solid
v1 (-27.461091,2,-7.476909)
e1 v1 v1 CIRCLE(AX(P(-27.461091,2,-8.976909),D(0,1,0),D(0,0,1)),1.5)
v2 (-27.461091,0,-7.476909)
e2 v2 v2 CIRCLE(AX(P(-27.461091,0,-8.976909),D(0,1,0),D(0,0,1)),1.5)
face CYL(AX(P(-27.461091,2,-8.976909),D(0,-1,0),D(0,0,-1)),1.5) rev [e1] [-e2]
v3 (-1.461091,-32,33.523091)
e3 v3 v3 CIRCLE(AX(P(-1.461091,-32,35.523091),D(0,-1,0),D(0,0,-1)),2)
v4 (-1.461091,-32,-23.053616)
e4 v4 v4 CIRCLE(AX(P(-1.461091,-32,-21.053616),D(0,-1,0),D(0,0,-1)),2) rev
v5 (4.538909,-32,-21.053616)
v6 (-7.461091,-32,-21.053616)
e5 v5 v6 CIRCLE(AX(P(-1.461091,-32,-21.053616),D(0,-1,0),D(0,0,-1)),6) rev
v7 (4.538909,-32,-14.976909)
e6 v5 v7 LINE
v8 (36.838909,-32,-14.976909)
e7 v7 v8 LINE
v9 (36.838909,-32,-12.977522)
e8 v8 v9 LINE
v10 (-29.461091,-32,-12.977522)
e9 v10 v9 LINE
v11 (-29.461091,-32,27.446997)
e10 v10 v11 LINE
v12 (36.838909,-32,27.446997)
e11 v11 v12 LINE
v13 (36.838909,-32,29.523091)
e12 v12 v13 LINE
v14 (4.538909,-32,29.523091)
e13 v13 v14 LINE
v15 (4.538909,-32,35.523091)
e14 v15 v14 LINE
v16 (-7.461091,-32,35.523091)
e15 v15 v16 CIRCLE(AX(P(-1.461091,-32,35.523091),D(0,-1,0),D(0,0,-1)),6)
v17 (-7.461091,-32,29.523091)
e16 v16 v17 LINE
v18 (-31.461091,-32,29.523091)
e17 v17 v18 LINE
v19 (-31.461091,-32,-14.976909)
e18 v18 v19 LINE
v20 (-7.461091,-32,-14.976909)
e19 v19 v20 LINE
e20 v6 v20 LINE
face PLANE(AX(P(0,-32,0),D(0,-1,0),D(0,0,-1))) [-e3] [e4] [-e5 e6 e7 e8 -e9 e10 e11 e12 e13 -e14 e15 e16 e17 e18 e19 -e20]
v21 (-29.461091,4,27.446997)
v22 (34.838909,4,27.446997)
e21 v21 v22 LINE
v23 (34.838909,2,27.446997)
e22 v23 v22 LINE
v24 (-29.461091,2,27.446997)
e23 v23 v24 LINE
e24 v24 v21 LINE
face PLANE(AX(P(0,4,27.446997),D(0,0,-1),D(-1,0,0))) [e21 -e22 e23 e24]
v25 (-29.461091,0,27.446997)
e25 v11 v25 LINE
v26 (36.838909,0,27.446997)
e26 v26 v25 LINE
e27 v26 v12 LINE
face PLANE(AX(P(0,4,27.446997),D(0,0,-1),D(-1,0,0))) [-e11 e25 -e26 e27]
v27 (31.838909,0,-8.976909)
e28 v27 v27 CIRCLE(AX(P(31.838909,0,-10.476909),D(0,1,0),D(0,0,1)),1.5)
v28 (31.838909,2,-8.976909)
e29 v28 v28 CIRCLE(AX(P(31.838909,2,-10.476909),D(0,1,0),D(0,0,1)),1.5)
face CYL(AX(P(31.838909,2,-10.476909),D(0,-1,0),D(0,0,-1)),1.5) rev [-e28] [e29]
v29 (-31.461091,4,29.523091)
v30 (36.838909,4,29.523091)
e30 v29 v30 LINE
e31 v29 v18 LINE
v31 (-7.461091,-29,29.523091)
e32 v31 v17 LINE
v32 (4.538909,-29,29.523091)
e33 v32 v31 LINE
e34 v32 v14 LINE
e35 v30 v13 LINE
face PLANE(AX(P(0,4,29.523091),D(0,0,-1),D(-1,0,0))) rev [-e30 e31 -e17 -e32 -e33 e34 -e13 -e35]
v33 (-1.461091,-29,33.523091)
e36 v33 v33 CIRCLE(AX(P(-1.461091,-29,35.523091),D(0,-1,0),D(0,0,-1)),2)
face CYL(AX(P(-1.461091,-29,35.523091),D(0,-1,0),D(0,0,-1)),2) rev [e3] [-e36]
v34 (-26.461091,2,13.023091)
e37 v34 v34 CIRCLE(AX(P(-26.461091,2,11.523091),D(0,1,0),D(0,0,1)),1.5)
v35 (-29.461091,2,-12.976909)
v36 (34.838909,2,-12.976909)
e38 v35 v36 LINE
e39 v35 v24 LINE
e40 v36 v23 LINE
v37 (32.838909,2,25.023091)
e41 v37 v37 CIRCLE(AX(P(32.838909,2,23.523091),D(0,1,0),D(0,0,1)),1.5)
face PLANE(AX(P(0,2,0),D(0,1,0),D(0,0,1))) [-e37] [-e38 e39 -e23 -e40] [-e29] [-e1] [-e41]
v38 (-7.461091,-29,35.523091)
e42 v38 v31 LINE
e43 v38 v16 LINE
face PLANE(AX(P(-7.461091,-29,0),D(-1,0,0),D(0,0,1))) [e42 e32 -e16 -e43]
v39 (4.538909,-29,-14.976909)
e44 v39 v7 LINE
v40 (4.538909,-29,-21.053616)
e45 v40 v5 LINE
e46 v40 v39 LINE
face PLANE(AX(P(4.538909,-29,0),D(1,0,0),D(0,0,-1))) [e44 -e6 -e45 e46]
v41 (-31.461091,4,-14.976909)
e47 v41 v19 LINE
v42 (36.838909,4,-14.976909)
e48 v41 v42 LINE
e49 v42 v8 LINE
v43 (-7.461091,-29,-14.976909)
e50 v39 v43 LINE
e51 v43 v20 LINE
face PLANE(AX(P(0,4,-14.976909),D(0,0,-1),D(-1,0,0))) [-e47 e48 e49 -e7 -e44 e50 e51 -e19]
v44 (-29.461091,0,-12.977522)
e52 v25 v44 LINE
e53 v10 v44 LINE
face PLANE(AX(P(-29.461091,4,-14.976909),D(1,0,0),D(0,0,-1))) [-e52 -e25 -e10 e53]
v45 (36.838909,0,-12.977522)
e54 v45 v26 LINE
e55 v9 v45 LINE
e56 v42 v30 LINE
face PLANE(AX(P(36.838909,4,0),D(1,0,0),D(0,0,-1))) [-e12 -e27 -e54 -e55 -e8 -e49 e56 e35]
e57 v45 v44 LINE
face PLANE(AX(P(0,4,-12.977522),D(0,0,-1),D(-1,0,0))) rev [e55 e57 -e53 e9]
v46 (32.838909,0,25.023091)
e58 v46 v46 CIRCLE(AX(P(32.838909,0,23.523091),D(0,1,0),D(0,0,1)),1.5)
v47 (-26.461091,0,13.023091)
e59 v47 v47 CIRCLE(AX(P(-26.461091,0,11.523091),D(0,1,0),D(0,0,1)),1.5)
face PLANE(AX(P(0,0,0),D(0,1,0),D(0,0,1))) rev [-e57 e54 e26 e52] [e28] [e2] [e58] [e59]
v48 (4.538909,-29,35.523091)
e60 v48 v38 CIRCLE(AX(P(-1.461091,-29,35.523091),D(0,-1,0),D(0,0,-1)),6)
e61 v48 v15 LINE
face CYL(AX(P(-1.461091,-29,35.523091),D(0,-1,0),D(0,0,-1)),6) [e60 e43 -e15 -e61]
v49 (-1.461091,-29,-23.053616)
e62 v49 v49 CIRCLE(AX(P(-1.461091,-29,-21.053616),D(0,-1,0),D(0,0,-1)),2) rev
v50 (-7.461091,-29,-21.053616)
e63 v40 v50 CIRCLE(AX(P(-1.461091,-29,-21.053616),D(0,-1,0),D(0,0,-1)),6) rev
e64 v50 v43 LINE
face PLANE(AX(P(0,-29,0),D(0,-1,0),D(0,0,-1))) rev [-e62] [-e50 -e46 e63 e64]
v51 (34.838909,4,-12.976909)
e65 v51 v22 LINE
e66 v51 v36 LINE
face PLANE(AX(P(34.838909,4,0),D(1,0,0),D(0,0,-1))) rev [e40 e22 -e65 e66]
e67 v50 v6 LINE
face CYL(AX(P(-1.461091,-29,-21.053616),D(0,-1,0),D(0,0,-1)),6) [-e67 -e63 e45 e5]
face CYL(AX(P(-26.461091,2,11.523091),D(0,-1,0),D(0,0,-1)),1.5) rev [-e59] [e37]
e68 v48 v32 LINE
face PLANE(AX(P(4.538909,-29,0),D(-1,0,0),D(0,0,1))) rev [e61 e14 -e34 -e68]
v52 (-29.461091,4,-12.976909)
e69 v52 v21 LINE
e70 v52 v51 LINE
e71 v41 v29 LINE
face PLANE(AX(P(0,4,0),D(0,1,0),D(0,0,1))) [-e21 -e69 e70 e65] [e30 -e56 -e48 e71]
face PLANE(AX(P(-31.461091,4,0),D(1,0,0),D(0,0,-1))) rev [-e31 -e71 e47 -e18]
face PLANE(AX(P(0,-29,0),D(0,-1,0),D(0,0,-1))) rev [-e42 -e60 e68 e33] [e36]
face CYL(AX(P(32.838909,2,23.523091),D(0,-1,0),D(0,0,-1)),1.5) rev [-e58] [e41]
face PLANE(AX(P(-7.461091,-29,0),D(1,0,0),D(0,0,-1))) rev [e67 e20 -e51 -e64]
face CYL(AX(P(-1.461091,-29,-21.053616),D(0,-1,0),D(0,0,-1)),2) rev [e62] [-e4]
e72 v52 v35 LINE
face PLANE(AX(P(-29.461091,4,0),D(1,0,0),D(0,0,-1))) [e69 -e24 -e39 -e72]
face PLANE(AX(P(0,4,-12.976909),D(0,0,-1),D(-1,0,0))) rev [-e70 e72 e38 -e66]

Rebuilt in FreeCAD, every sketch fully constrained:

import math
import FreeCAD as App
import Part
import Sketcher

V = App.Vector
Q = App.Units.Quantity

doc = App.newDocument("Part")
body = doc.addObject("PartDesign::Body", "Body")

# Sketch on XZ plane
sketch1 = doc.addObject("Sketcher::SketchObject", "Sketch")
body.addObject(sketch1)
sketch1.AttachmentSupport = (doc.XZ_Plane, [""])
sketch1.MapMode = "FlatFace"
sketch1.addGeometry(Part.LineSegment(V(-29.5, -13, 0), V(-29.5, 27.5, 0)), False)
sketch1.addGeometry(Part.LineSegment(V(-29.5, 27.5, 0), V(34.8, 27.5, 0)), False)
sketch1.addGeometry(Part.LineSegment(V(34.8, 27.5, 0), V(34.8, -13, 0)), False)
sketch1.addGeometry(Part.LineSegment(V(34.8, -13, 0), V(-29.5, -13, 0)), False)
sketch1.addGeometry(Part.Circle(V(-26.5, 11.5, 0), V(0, 0, 1), 1.5), False)
sketch1.addGeometry(Part.Circle(V(32.8, 23.5, 0), V(0, 0, 1), 1.5), False)
sketch1.addGeometry(Part.Circle(V(-27.5, -9, 0), V(0, 0, 1), 1.5), False)
sketch1.addGeometry(Part.Circle(V(31.8, -10.5, 0), V(0, 0, 1), 1.5), False)
sketch1.addConstraint(Sketcher.Constraint("Coincident", 0, 2, 1, 1))
sketch1.addConstraint(Sketcher.Constraint("Coincident", 1, 2, 2, 1))
sketch1.addConstraint(Sketcher.Constraint("Coincident", 2, 2, 3, 1))
sketch1.addConstraint(Sketcher.Constraint("Coincident", 3, 2, 0, 1))
sketch1.addConstraint(Sketcher.Constraint("Vertical", 0))
sketch1.addConstraint(Sketcher.Constraint("Horizontal", 1))
sketch1.addConstraint(Sketcher.Constraint("Vertical", 2))
sketch1.addConstraint(Sketcher.Constraint("Horizontal", 3))
sketch1.addConstraint(Sketcher.Constraint("Equal", 4, 5))
sketch1.addConstraint(Sketcher.Constraint("Equal", 5, 6))
sketch1.addConstraint(Sketcher.Constraint("Equal", 6, 7))
sketch1.addConstraint(Sketcher.Constraint("Diameter", 4, Q("3 mm")))
sketch1.addConstraint(Sketcher.Constraint("DistanceX", 1, 1, 1, 2, Q("64.3 mm")))
sketch1.addConstraint(Sketcher.Constraint("DistanceY", 0, 1, 0, 2, Q("40.5 mm")))
sketch1.addConstraint(Sketcher.Constraint("DistanceY", 4, 3, 5, 3, Q("12 mm")))
sketch1.addConstraint(Sketcher.Constraint("DistanceX", 6, 3, 4, 3, Q("1 mm")))
sketch1.addConstraint(Sketcher.Constraint("DistanceX", 7, 3, 5, 3, Q("1 mm")))
sketch1.addConstraint(Sketcher.Constraint("DistanceY", 7, 3, 5, 3, Q("34 mm")))
sketch1.addConstraint(Sketcher.Constraint("DistanceX", 0, 2, 4, 3, Q("3 mm")))
sketch1.addConstraint(Sketcher.Constraint("DistanceY", 4, 3, 0, 2, Q("16 mm")))
sketch1.addConstraint(Sketcher.Constraint("DistanceX", 5, 3, 1, 2, Q("2 mm")))
sketch1.addConstraint(Sketcher.Constraint("DistanceY", 2, 2, 6, 3, Q("4 mm")))
sketch1.addConstraint(Sketcher.Constraint("DistanceX", 4, 3, -1, 1, Q("26.461091 mm")))
sketch1.addConstraint(Sketcher.Constraint("DistanceY", -1, 1, 4, 3, Q("11.523091 mm")))
pad1 = doc.addObject("PartDesign::Pad", "Pad")
body.addObject(pad1)
pad1.Profile = sketch1
pad1.Length = 2
pad1.Reversed = True

# Sketch on XZ plane
sketch2 = doc.addObject("Sketcher::SketchObject", "Sketch001")
body.addObject(sketch2)
sketch2.AttachmentSupport = (doc.XZ_Plane, [""])
sketch2.MapMode = "FlatFace"
sketch2.addGeometry(Part.LineSegment(V(-31, -15, 0), V(-31, 30, 0)), False)
sketch2.addGeometry(Part.LineSegment(V(-31, 30, 0), V(37, 30, 0)), False)
sketch2.addGeometry(Part.LineSegment(V(37, 30, 0), V(37, -15, 0)), False)
sketch2.addGeometry(Part.LineSegment(V(37, -15, 0), V(-31, -15, 0)), False)
sketch2.addGeometry(Part.LineSegment(V(35, 28, 0), V(-29, 28, 0)), False)
sketch2.addGeometry(Part.LineSegment(V(-29, 28, 0), V(-29, -13, 0)), False)
sketch2.addGeometry(Part.LineSegment(V(-29, -13, 0), V(35, -13, 0)), False)
sketch2.addGeometry(Part.LineSegment(V(35, -13, 0), V(35, 28, 0)), False)
sketch2.addConstraint(Sketcher.Constraint("Coincident", 0, 2, 1, 1))
sketch2.addConstraint(Sketcher.Constraint("Coincident", 1, 2, 2, 1))
sketch2.addConstraint(Sketcher.Constraint("Coincident", 2, 2, 3, 1))
sketch2.addConstraint(Sketcher.Constraint("Coincident", 3, 2, 0, 1))
sketch2.addConstraint(Sketcher.Constraint("Coincident", 4, 2, 5, 1))
sketch2.addConstraint(Sketcher.Constraint("Coincident", 5, 2, 6, 1))
sketch2.addConstraint(Sketcher.Constraint("Coincident", 6, 2, 7, 1))
sketch2.addConstraint(Sketcher.Constraint("Coincident", 7, 2, 4, 1))
sketch2.addConstraint(Sketcher.Constraint("Vertical", 0))
sketch2.addConstraint(Sketcher.Constraint("Horizontal", 1))
sketch2.addConstraint(Sketcher.Constraint("Vertical", 2))
sketch2.addConstraint(Sketcher.Constraint("Horizontal", 3))
sketch2.addConstraint(Sketcher.Constraint("Horizontal", 4))
sketch2.addConstraint(Sketcher.Constraint("Vertical", 5))
sketch2.addConstraint(Sketcher.Constraint("Horizontal", 6))
sketch2.addConstraint(Sketcher.Constraint("Vertical", 7))
sketch2.addConstraint(Sketcher.Constraint("DistanceX", 1, 1, 1, 2, Q("68.3 mm")))
sketch2.addConstraint(Sketcher.Constraint("DistanceX", 4, 2, 4, 1, Q("64.3 mm")))
sketch2.addConstraint(Sketcher.Constraint("DistanceY", 0, 1, 0, 2, Q("44.5 mm")))
sketch2.addConstraint(Sketcher.Constraint("DistanceY", 5, 2, 5, 1, Q("40.5 mm")))
sketch2.addConstraint(Sketcher.Constraint("DistanceX", 0, 2, 4, 2, Q("2 mm")))
sketch2.addConstraint(Sketcher.Constraint("DistanceY", 4, 2, 0, 2, Q("2 mm")))
sketch2.addConstraint(Sketcher.Constraint("DistanceX", 0, 2, -1, 1, Q("31.461091 mm")))
sketch2.addConstraint(Sketcher.Constraint("DistanceY", -1, 1, 0, 2, Q("29.523091 mm")))
pad2 = doc.addObject("PartDesign::Pad", "Pad001")
body.addObject(pad2)
pad2.Profile = sketch2
pad2.Length = 4
pad2.Reversed = True

# Sketch on XZ plane
sketch3 = doc.addObject("Sketcher::SketchObject", "Sketch002")
body.addObject(sketch3)
sketch3.AttachmentSupport = (doc.XZ_Plane, [""])
sketch3.MapMode = "FlatFace"
sketch3.addGeometry(Part.LineSegment(V(-31.5, -15, 0), V(36.8, -15, 0)), False)
sketch3.addGeometry(Part.LineSegment(V(36.8, -15, 0), V(36.8, -13, 0)), False)
sketch3.addGeometry(Part.LineSegment(V(36.8, -13, 0), V(-29.5, -13, 0)), False)
sketch3.addGeometry(Part.LineSegment(V(-29.5, -13, 0), V(-29.5, 27.4, 0)), False)
sketch3.addGeometry(Part.LineSegment(V(-29.5, 27.4, 0), V(36.8, 27.4, 0)), False)
sketch3.addGeometry(Part.LineSegment(V(36.8, 27.4, 0), V(36.8, 29.5, 0)), False)
sketch3.addGeometry(Part.LineSegment(V(36.8, 29.5, 0), V(-31.5, 29.5, 0)), False)
sketch3.addGeometry(Part.LineSegment(V(-31.5, 29.5, 0), V(-31.5, -15, 0)), False)
sketch3.addConstraint(Sketcher.Constraint("Coincident", 0, 2, 1, 1))
sketch3.addConstraint(Sketcher.Constraint("Coincident", 1, 2, 2, 1))
sketch3.addConstraint(Sketcher.Constraint("Coincident", 2, 2, 3, 1))
sketch3.addConstraint(Sketcher.Constraint("Coincident", 3, 2, 4, 1))
sketch3.addConstraint(Sketcher.Constraint("Coincident", 4, 2, 5, 1))
sketch3.addConstraint(Sketcher.Constraint("Coincident", 5, 2, 6, 1))
sketch3.addConstraint(Sketcher.Constraint("Coincident", 6, 2, 7, 1))
sketch3.addConstraint(Sketcher.Constraint("Coincident", 7, 2, 0, 1))
sketch3.addConstraint(Sketcher.Constraint("Horizontal", 0))
sketch3.addConstraint(Sketcher.Constraint("Vertical", 1))
sketch3.addConstraint(Sketcher.Constraint("Horizontal", 2))
sketch3.addConstraint(Sketcher.Constraint("Vertical", 3))
sketch3.addConstraint(Sketcher.Constraint("Horizontal", 4))
sketch3.addConstraint(Sketcher.Constraint("Vertical", 5))
sketch3.addConstraint(Sketcher.Constraint("Horizontal", 6))
sketch3.addConstraint(Sketcher.Constraint("Vertical", 7))
sketch3.addConstraint(Sketcher.Constraint("Vertical", 1, 2, 4, 2))
sketch3.addConstraint(Sketcher.Constraint("DistanceX", 0, 1, 0, 2, Q("68.3 mm")))
sketch3.addConstraint(Sketcher.Constraint("DistanceX", 2, 2, 2, 1, Q("66.3 mm")))
sketch3.addConstraint(Sketcher.Constraint("DistanceY", 7, 2, 7, 1, Q("44.5 mm")))
sketch3.addConstraint(Sketcher.Constraint("DistanceY", 3, 1, 3, 2, Q("40.424519 mm")))
sketch3.addConstraint(Sketcher.Constraint("DistanceY", 1, 1, 1, 2, Q("1.999387 mm")))
sketch3.addConstraint(Sketcher.Constraint("DistanceX", -1, 1, 0, 2, Q("36.838909 mm")))
sketch3.addConstraint(Sketcher.Constraint("DistanceY", 0, 2, -1, 1, Q("14.976909 mm")))
pad3 = doc.addObject("PartDesign::Pad", "Pad002")
body.addObject(pad3)
pad3.Profile = sketch3
pad3.Type = "TwoLengths"
pad3.Length = 32
pad3.Length2 = 4

# Sketch on XZ plane
sketch4 = doc.addObject("Sketcher::SketchObject", "Sketch003")
body.addObject(sketch4)
sketch4.AttachmentSupport = (doc.XZ_Plane, [""])
sketch4.MapMode = "FlatFace"
sketch4.AttachmentOffset = App.Placement(V(0, 0, 32), App.Rotation())
sketch4.addGeometry(Part.LineSegment(V(4.5, 29.5, 0), V(4.5, 35.5, 0)), False)
sketch4.addGeometry(Part.ArcOfCircle(Part.Circle(V(-1.5, 35.5, 0), V(0, 0, 1), 6), math.radians(0), math.radians(180)), False)
sketch4.addGeometry(Part.LineSegment(V(-7.5, 35.5, 0), V(-7.5, 29.5, 0)), False)
sketch4.addGeometry(Part.LineSegment(V(-7.5, 29.5, 0), V(4.5, 29.5, 0)), False)
sketch4.addGeometry(Part.Circle(V(-1.5, 35.5, 0), V(0, 0, 1), 2), False)
sketch4.addGeometry(Part.LineSegment(V(4.5, -15, 0), V(-7.5, -15, 0)), False)
sketch4.addGeometry(Part.LineSegment(V(-7.5, -15, 0), V(-7.5, -21.1, 0)), False)
sketch4.addGeometry(Part.ArcOfCircle(Part.Circle(V(-1.5, -21.1, 0), V(0, 0, 1), 6), math.radians(180), math.radians(360)), False)
sketch4.addGeometry(Part.LineSegment(V(4.5, -21.1, 0), V(4.5, -15, 0)), False)
sketch4.addGeometry(Part.Circle(V(-1.5, -21.1, 0), V(0, 0, 1), 2), False)
sketch4.addConstraint(Sketcher.Constraint("Tangent", 0, 2, 1, 1))
sketch4.addConstraint(Sketcher.Constraint("Tangent", 1, 2, 2, 1))
sketch4.addConstraint(Sketcher.Constraint("Coincident", 2, 2, 3, 1))
sketch4.addConstraint(Sketcher.Constraint("Coincident", 3, 2, 0, 1))
sketch4.addConstraint(Sketcher.Constraint("Coincident", 5, 2, 6, 1))
sketch4.addConstraint(Sketcher.Constraint("Tangent", 6, 2, 7, 1))
sketch4.addConstraint(Sketcher.Constraint("Tangent", 7, 2, 8, 1))
sketch4.addConstraint(Sketcher.Constraint("Coincident", 8, 2, 5, 1))
sketch4.addConstraint(Sketcher.Constraint("Vertical", 0))
sketch4.addConstraint(Sketcher.Constraint("Vertical", 2))
sketch4.addConstraint(Sketcher.Constraint("Horizontal", 3))
sketch4.addConstraint(Sketcher.Constraint("Horizontal", 5))
sketch4.addConstraint(Sketcher.Constraint("Vertical", 6))
sketch4.addConstraint(Sketcher.Constraint("Vertical", 8))
sketch4.addConstraint(Sketcher.Constraint("Coincident", 4, 3, 1, 3))
sketch4.addConstraint(Sketcher.Constraint("Coincident", 9, 3, 7, 3))
sketch4.addConstraint(Sketcher.Constraint("Equal", 1, 7))
sketch4.addConstraint(Sketcher.Constraint("Equal", 4, 9))
sketch4.addConstraint(Sketcher.Constraint("Vertical", 4, 3, 7, 3))
sketch4.addConstraint(Sketcher.Constraint("Diameter", 4, Q("4 mm")))
sketch4.addConstraint(Sketcher.Constraint("Radius", 1, Q("6 mm")))
sketch4.addConstraint(Sketcher.Constraint("DistanceY", 0, 1, 0, 2, Q("6 mm")))
sketch4.addConstraint(Sketcher.Constraint("DistanceY", 5, 2, 2, 2, Q("44.5 mm")))
sketch4.addConstraint(Sketcher.Constraint("DistanceY", 6, 2, 6, 1, Q("6.076707 mm")))
sketch4.addConstraint(Sketcher.Constraint("DistanceX", 1, 3, -1, 1, Q("1.461091 mm")))
sketch4.addConstraint(Sketcher.Constraint("DistanceY", -1, 1, 1, 3, Q("35.523091 mm")))
pad4 = doc.addObject("PartDesign::Pad", "Pad003")
body.addObject(pad4)
pad4.Profile = sketch4
pad4.Length = 3
pad4.Reversed = True

doc.recompute()
